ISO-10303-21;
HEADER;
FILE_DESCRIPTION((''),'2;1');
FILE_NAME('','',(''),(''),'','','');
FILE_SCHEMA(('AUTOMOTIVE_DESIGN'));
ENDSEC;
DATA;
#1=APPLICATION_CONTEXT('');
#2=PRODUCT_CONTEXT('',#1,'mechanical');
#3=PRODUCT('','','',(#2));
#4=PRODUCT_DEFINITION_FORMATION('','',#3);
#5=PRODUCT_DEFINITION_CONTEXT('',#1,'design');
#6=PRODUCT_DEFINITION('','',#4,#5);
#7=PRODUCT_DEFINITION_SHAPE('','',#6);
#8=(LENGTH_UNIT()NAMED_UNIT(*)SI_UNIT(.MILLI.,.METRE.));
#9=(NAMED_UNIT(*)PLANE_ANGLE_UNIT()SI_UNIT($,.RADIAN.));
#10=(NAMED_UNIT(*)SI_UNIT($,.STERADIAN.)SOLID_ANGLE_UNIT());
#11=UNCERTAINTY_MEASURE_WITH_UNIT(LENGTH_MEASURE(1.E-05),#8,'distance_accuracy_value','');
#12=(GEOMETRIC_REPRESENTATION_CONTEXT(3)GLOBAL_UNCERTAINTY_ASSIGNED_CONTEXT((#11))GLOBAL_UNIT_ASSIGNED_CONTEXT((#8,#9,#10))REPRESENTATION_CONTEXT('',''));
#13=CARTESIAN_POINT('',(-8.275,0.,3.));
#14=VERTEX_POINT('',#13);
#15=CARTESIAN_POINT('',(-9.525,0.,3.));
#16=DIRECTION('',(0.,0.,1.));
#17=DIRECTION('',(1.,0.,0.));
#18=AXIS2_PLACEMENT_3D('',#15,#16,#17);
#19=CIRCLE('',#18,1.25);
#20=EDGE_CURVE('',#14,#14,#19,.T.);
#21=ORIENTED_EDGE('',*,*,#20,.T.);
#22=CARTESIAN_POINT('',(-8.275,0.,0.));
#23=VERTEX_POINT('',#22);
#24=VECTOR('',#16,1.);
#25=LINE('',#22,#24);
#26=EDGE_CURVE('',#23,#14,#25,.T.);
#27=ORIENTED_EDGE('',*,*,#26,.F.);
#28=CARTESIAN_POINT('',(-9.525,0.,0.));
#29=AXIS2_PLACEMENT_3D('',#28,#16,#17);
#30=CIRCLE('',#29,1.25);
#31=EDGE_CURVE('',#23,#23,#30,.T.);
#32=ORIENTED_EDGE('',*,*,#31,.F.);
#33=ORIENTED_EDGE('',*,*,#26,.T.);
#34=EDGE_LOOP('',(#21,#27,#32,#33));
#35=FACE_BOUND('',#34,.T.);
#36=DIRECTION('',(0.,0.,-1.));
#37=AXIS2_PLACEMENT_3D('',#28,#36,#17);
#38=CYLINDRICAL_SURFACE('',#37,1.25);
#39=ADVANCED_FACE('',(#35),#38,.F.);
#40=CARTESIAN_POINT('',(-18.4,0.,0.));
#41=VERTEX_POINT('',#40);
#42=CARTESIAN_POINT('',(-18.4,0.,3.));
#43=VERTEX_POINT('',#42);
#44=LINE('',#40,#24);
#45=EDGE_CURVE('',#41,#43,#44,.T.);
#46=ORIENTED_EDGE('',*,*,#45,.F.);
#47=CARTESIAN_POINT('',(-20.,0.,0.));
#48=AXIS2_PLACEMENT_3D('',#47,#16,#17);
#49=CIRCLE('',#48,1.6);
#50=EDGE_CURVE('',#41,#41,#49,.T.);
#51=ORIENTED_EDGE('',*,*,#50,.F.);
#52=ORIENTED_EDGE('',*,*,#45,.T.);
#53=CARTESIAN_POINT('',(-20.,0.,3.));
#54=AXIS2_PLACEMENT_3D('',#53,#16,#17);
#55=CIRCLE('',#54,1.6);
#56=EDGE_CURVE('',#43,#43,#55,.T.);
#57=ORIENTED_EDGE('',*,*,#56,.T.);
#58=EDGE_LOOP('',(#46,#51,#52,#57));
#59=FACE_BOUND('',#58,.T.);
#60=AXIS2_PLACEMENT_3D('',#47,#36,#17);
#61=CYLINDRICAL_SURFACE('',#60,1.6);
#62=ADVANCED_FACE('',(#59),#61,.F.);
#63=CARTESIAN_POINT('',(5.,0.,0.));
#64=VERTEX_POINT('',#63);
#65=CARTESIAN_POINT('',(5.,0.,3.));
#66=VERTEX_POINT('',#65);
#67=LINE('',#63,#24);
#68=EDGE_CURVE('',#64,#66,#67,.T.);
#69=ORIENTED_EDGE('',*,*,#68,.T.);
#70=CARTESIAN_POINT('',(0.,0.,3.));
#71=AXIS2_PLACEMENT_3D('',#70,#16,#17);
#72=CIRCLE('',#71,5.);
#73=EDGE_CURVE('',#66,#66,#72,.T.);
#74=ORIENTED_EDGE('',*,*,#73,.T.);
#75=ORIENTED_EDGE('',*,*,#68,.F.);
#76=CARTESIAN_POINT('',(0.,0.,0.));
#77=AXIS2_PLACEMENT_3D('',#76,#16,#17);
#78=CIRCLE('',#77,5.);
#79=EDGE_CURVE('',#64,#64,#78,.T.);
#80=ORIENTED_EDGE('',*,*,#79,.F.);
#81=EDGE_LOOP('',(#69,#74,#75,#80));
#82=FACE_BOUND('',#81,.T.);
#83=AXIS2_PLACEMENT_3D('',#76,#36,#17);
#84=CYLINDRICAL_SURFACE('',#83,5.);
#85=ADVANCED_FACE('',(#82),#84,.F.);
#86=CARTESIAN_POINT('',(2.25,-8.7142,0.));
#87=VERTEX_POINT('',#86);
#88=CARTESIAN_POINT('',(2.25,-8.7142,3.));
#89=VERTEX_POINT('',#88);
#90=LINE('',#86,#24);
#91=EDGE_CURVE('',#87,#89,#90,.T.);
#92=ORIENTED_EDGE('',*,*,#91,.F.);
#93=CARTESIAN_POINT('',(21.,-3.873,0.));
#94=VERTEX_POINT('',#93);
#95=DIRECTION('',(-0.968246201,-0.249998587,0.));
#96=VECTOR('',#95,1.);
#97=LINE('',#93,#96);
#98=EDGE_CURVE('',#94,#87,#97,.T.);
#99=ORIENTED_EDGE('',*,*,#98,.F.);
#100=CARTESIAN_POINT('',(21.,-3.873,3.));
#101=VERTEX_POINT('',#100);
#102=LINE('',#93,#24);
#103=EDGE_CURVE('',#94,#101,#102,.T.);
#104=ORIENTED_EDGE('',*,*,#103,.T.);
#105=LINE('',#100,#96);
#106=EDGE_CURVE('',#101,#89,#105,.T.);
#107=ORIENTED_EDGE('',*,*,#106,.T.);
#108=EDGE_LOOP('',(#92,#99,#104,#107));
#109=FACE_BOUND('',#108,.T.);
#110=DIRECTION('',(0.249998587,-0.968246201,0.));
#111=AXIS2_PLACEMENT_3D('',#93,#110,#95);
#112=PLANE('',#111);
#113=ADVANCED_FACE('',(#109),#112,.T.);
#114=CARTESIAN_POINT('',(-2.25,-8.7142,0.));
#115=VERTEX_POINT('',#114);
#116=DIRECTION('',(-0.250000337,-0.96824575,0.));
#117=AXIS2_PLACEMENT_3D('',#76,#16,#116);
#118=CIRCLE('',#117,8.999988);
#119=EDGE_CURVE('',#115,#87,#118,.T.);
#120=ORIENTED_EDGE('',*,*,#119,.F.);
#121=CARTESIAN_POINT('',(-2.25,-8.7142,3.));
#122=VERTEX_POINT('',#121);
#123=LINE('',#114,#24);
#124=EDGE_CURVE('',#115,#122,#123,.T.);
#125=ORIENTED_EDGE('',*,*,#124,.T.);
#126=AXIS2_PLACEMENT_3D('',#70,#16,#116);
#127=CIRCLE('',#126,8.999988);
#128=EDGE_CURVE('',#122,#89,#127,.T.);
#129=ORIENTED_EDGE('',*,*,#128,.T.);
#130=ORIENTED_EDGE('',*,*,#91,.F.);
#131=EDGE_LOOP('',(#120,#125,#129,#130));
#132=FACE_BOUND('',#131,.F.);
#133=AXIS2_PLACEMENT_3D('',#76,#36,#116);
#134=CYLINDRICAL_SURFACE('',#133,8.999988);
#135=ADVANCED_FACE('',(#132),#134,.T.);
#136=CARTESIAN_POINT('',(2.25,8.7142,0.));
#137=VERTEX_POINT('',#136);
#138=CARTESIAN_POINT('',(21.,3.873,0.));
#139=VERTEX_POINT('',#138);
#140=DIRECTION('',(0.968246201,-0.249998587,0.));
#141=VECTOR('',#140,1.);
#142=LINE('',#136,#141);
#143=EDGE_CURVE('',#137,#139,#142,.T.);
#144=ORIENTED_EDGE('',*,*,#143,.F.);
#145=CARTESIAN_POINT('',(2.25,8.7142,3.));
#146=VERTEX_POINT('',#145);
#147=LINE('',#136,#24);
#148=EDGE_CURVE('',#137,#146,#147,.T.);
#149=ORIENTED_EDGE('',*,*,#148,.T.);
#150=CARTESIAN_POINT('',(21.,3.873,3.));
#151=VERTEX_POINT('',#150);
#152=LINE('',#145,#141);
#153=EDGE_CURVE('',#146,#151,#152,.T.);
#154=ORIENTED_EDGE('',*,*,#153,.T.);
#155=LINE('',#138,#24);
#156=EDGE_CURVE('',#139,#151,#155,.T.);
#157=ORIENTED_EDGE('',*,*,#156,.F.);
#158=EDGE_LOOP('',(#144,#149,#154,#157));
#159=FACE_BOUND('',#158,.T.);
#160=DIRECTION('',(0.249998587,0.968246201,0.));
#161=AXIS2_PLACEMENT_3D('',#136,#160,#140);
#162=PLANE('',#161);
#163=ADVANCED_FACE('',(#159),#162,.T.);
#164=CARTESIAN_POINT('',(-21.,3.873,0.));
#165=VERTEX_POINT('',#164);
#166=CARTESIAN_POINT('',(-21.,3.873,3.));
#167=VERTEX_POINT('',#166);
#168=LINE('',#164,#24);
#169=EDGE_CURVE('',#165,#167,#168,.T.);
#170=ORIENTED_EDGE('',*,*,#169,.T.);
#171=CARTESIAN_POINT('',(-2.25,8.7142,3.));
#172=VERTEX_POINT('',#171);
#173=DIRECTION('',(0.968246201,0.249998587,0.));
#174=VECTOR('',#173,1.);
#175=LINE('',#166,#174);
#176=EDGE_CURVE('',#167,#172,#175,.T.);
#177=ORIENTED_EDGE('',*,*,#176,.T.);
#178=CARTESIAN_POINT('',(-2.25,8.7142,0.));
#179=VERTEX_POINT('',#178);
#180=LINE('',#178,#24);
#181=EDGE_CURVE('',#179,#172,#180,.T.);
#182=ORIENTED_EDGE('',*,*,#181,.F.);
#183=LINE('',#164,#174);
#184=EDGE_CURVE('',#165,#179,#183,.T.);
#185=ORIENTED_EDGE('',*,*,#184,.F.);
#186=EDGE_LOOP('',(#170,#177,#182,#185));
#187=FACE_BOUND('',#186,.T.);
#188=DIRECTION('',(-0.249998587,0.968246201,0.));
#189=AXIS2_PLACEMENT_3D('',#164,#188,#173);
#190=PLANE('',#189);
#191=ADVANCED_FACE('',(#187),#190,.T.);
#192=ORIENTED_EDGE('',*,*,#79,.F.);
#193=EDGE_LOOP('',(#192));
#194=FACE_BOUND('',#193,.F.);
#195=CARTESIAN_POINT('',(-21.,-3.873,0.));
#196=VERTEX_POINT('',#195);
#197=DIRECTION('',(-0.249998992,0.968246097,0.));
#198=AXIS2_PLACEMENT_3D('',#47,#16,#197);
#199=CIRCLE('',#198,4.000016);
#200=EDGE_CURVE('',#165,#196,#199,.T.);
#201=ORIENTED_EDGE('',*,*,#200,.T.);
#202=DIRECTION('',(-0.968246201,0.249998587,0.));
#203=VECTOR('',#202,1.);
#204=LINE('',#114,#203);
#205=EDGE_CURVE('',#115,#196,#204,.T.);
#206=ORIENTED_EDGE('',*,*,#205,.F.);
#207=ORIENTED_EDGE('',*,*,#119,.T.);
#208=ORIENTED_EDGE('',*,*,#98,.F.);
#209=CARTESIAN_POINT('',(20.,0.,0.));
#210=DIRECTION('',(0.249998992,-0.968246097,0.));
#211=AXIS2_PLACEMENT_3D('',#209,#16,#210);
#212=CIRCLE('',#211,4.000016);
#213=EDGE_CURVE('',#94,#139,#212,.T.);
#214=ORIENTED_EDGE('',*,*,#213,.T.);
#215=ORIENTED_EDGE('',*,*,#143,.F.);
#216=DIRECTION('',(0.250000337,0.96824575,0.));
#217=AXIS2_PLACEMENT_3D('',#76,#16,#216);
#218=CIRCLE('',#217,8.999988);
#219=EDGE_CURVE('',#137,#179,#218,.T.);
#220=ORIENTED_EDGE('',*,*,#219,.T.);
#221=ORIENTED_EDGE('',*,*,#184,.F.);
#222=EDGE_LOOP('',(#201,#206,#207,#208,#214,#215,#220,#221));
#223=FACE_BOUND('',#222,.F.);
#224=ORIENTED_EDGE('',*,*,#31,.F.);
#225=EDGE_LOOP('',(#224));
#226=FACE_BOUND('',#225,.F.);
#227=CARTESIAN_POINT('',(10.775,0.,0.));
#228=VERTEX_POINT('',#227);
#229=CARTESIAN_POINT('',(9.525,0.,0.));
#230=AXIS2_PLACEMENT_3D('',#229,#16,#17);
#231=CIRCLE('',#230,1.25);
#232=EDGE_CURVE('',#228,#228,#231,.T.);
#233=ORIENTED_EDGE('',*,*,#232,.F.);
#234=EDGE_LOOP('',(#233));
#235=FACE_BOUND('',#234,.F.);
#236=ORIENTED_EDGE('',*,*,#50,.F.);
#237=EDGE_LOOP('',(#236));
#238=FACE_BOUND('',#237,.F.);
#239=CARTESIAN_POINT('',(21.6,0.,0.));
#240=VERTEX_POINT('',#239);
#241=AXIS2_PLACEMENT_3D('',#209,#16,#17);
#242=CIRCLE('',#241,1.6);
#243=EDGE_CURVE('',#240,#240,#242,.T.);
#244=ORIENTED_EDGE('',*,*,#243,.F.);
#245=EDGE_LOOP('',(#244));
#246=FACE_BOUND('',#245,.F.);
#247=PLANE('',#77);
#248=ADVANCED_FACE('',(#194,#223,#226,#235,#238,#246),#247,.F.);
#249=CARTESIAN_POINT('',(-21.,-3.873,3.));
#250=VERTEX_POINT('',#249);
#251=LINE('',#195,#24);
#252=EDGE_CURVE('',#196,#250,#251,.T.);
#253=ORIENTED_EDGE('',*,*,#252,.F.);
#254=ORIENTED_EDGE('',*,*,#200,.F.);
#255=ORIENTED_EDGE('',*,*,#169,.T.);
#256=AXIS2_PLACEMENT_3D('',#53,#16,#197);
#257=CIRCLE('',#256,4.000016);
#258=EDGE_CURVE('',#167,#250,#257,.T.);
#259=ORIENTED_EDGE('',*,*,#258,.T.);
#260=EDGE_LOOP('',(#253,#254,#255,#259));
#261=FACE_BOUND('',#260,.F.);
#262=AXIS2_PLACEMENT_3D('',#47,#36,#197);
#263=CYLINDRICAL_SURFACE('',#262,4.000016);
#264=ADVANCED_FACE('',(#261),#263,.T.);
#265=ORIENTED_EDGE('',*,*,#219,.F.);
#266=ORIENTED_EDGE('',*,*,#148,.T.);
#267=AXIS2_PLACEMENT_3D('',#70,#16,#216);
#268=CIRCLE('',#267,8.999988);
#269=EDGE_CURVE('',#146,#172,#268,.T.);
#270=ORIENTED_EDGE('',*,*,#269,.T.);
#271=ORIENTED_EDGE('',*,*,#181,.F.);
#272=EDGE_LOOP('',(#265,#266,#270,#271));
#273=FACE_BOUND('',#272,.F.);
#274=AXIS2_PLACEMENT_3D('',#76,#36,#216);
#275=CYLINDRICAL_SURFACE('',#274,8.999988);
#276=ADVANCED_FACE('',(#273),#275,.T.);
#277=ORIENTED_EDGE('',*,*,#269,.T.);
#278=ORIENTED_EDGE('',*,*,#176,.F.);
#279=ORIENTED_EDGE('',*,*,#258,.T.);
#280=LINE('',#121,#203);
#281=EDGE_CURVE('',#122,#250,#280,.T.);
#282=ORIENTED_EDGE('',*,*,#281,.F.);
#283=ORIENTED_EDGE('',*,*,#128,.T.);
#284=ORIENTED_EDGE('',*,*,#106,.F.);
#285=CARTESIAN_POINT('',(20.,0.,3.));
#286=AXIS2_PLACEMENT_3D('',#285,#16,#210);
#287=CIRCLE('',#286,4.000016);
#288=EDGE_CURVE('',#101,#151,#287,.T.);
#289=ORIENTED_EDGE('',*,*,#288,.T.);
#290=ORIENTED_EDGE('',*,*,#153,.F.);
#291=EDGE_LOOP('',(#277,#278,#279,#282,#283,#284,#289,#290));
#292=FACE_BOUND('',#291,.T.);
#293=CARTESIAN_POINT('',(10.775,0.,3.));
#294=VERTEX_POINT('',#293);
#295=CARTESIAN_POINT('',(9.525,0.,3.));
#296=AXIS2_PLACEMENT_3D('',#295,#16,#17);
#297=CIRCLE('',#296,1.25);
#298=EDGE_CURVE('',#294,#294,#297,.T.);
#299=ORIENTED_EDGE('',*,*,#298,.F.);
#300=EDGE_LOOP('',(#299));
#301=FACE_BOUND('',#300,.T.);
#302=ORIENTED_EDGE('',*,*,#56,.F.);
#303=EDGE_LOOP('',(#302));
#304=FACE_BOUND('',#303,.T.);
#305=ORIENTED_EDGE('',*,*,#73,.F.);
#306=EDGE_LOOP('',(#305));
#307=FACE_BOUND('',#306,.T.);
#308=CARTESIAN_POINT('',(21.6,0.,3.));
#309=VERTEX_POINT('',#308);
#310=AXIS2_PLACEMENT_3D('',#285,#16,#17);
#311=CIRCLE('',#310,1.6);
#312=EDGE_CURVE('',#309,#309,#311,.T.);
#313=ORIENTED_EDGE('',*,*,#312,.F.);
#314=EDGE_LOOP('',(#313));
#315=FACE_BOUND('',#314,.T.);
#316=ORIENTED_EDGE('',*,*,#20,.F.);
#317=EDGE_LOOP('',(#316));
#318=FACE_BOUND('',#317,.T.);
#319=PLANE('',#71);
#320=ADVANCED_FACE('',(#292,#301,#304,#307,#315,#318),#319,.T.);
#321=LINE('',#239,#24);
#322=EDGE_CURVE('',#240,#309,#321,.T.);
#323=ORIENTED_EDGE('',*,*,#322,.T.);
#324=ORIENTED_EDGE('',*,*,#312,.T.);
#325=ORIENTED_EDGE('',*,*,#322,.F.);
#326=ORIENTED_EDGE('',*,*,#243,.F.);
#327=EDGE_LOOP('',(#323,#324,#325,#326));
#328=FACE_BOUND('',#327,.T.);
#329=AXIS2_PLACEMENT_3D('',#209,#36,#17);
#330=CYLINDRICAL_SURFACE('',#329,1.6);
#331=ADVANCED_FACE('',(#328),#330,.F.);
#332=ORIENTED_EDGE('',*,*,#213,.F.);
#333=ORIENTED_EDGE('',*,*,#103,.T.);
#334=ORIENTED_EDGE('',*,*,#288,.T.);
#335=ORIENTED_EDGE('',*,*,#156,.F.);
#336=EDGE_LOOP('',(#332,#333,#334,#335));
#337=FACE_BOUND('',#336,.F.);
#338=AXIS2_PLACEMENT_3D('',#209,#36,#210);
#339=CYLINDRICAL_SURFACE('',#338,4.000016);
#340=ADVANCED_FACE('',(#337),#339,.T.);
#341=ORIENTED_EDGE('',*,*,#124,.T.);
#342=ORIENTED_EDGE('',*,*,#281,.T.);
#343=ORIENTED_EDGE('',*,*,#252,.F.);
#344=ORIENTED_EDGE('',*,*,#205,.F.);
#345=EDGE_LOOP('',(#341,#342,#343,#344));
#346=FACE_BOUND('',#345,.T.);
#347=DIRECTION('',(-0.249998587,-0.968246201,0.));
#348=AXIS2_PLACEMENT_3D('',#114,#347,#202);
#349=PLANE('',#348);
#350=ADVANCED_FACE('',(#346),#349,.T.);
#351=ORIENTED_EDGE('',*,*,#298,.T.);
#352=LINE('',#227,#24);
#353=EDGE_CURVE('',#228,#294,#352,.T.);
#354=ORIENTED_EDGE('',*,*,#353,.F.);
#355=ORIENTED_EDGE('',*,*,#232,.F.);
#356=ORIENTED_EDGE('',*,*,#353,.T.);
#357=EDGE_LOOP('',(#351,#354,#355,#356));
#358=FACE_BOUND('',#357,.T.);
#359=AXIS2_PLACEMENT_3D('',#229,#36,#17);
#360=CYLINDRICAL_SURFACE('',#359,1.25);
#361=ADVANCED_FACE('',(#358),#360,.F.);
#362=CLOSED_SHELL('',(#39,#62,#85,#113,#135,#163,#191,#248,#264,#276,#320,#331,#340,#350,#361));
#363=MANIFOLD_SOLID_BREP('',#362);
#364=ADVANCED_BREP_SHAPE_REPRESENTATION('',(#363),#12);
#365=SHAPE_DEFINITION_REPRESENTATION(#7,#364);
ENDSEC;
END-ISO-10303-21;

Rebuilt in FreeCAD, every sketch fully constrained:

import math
import FreeCAD as App
import Part
import Sketcher
Q = App.Units.Quantity

doc = App.newDocument("Part")
body = doc.addObject("PartDesign::Body", "Body")

sketch1 = doc.addObject("Sketcher::SketchObject", "Sketch")
body.addObject(sketch1)
sketch1.AttachmentSupport = (doc.XY_Plane, [""])
sketch1.MapMode = "FlatFace"
sketch1.addGeometry([
    Part.LineSegment(App.Vector(-2.2, 8.7, 0), App.Vector(-21, 3.9, 0)),
    Part.ArcOfCircle(Part.Circle(App.Vector(-20, 0, 0), App.Vector(0, 0, 1), 4), math.radians(104), math.radians(256)),
    Part.LineSegment(App.Vector(-21, -3.9, 0), App.Vector(-2.2, -8.7, 0)),
    Part.ArcOfCircle(Part.Circle(App.Vector(0, 0, 0), App.Vector(0, 0, 1), 9), math.radians(-104), math.radians(-76)),
    Part.LineSegment(App.Vector(2.2, -8.7, 0), App.Vector(21, -3.9, 0)),
    Part.ArcOfCircle(Part.Circle(App.Vector(20, 0, 0), App.Vector(0, 0, 1), 4), math.radians(-76), math.radians(76)),
    Part.LineSegment(App.Vector(21, 3.9, 0), App.Vector(2.2, 8.7, 0)),
    Part.ArcOfCircle(Part.Circle(App.Vector(0, 0, 0), App.Vector(0, 0, 1), 9), math.radians(76), math.radians(104)),
    Part.Circle(App.Vector(-20, 0, 0), App.Vector(0, 0, 1), 1.6),
    Part.Circle(App.Vector(-9.5, 0, 0), App.Vector(0, 0, 1), 1.2),
    Part.Circle(App.Vector(0, 0, 0), App.Vector(0, 0, 1), 5),
    Part.Circle(App.Vector(9.5, 0, 0), App.Vector(0, 0, 1), 1.2),
    Part.Circle(App.Vector(20, 0, 0), App.Vector(0, 0, 1), 1.6),
], False)
sketch1.addConstraint([
    Sketcher.Constraint("Tangent", 0, 2, 1, 1),
    Sketcher.Constraint("Tangent", 1, 2, 2, 1),
    Sketcher.Constraint("Tangent", 2, 2, 3, 1),
    Sketcher.Constraint("Tangent", 3, 2, 4, 1),
    Sketcher.Constraint("Tangent", 4, 2, 5, 1),
    Sketcher.Constraint("Tangent", 5, 2, 6, 1),
    Sketcher.Constraint("Tangent", 6, 2, 7, 1),
    Sketcher.Constraint("Tangent", 7, 2, 0, 1),
    Sketcher.Constraint("Coincident", 3, 3, -1, 1),
    Sketcher.Constraint("Coincident", 7, 3, -1, 1),
    Sketcher.Constraint("Coincident", 10, 3, -1, 1),
    Sketcher.Constraint("Coincident", 8, 3, 1, 3),
    Sketcher.Constraint("Coincident", 12, 3, 5, 3),
    Sketcher.Constraint("Equal", 1, 5),
    Sketcher.Constraint("Equal", 3, 7),
    Sketcher.Constraint("Equal", 9, 11),
    Sketcher.Constraint("Equal", 8, 12),
    Sketcher.Constraint("Symmetric", 1, 3, 5, 3, -1, 1),
    Sketcher.Constraint("Symmetric", 9, 3, 11, 3, -1, 1),
    Sketcher.Constraint("PointOnObject", 1, 3, -1),
    Sketcher.Constraint("PointOnObject", 9, 3, -1),
    Sketcher.Constraint("Diameter", 10, Q("10 mm")),
    Sketcher.Constraint("Radius", 1, Q("4 mm")),
    Sketcher.Constraint("Radius", 3, Q("9 mm")),
    Sketcher.Constraint("Diameter", 8, Q("3.2 mm")),
    Sketcher.Constraint("Diameter", 9, Q("2.5 mm")),
    Sketcher.Constraint("DistanceX", 1, 3, -1, 1, Q("20 mm")),
    Sketcher.Constraint("DistanceX", 9, 3, 11, 3, Q("19.05 mm")),
])
pad1 = doc.addObject("PartDesign::Pad", "Pad")
body.addObject(pad1)
pad1.Profile = sketch1
pad1.Length = 3

doc.recompute()
